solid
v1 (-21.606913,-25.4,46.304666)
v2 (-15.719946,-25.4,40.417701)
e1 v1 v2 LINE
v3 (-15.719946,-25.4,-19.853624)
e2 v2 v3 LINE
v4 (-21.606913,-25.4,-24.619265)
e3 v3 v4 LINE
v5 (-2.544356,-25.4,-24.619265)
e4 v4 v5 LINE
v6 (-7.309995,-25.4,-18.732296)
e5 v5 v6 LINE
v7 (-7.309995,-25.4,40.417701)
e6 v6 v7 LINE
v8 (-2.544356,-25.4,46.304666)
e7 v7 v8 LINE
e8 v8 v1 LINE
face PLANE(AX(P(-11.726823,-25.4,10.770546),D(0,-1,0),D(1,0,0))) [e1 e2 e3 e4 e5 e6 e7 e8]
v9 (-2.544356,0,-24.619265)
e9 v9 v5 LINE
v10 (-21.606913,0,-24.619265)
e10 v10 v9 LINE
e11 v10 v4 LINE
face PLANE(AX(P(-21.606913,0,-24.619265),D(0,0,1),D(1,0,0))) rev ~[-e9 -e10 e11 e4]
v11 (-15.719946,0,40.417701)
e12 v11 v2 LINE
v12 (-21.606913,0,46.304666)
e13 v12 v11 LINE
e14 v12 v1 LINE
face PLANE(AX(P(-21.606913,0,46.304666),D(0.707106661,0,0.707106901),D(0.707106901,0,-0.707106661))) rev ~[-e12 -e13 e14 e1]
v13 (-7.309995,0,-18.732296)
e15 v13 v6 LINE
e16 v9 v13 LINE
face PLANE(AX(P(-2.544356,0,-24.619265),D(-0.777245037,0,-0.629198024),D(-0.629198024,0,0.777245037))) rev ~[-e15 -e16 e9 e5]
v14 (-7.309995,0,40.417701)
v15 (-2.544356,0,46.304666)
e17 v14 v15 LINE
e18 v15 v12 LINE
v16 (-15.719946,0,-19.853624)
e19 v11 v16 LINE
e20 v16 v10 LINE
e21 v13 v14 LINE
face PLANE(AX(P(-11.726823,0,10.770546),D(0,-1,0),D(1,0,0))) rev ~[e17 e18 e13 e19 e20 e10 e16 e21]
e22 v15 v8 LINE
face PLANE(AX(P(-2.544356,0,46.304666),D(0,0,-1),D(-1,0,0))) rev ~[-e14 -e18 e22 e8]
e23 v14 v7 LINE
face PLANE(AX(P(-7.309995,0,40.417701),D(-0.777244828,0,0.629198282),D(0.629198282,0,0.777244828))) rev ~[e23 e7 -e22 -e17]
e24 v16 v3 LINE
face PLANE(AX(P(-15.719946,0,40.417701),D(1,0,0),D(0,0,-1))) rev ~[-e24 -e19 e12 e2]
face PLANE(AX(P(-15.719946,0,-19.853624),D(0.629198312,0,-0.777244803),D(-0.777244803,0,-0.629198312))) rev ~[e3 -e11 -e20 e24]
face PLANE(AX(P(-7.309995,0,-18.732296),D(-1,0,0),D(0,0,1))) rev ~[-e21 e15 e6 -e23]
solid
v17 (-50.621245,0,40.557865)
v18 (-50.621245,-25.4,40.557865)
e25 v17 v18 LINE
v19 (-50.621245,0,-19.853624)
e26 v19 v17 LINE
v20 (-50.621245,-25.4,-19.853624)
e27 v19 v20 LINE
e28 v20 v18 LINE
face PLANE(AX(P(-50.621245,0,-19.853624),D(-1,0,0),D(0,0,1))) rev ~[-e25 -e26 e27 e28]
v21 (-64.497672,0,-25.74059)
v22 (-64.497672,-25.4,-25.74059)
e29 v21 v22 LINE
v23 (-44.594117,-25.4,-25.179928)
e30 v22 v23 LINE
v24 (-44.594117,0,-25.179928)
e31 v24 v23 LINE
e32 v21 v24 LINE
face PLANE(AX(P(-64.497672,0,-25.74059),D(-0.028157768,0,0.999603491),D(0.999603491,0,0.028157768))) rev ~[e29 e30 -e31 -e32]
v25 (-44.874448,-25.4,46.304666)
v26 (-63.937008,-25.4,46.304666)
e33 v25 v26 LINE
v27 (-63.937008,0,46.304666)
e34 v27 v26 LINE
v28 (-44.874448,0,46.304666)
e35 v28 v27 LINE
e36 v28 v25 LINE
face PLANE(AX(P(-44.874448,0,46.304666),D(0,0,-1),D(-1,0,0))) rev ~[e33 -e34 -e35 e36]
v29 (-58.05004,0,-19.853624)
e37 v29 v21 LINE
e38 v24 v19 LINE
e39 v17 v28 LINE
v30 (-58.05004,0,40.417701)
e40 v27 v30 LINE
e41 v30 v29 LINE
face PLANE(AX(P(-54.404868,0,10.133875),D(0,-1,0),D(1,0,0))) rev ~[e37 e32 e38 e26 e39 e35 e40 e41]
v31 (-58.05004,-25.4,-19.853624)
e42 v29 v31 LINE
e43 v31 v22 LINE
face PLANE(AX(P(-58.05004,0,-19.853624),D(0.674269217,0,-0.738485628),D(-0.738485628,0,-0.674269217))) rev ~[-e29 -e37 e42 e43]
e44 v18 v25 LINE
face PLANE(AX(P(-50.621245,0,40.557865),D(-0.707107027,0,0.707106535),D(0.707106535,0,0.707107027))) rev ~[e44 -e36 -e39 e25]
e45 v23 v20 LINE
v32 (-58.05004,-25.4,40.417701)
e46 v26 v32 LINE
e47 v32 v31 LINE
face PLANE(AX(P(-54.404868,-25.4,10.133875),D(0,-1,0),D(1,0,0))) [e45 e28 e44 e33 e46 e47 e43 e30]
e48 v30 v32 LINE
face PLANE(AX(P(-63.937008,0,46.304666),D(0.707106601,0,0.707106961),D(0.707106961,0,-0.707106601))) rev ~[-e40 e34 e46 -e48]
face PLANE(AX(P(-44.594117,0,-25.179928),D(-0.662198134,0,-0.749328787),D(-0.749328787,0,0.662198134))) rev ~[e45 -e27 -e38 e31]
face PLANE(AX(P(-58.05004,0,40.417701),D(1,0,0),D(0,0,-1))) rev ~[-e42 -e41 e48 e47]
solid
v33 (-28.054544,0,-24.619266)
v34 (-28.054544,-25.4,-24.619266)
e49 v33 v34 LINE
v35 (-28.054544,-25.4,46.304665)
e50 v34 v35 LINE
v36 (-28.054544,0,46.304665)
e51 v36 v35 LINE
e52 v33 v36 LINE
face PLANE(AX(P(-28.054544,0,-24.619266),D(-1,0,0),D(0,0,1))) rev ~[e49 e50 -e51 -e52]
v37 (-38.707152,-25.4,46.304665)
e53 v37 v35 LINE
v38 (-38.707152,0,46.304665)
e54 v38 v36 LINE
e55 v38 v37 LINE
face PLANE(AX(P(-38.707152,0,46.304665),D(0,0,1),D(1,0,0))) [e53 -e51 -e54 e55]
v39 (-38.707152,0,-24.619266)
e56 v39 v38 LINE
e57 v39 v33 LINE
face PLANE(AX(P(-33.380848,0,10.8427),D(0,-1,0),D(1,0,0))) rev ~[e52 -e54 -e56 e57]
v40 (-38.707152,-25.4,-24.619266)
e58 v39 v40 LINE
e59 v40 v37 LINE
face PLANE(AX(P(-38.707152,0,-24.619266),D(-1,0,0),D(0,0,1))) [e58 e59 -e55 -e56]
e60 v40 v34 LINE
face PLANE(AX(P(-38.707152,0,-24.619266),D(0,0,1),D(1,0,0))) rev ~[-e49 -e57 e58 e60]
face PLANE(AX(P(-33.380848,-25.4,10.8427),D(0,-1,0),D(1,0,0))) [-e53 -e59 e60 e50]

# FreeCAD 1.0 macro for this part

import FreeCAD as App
import Part
import Sketcher
from FreeCAD import Vector
Q = App.Units.Quantity

doc = App.newDocument("Part")
body = doc.addObject("PartDesign::Body", "Body")
body.AllowCompound = True

# Sketch on XZ plane
sketch1 = body.newObject("Sketcher::SketchObject", "Sketch")
sketch1.AttachmentSupport = (doc.getObject("XZ_Plane"), [""])
sketch1.MapMode = "FlatFace"
sketch1.addGeometry([
    Part.LineSegment(Vector(-45, 46, 0), Vector(-64, 46, 0)),  # 0
    Part.LineSegment(Vector(-64, 46, 0), Vector(-58, 40, 0)),  # 1
    Part.LineSegment(Vector(-58, 40, 0), Vector(-58, -20, 0)),  # 2
    Part.LineSegment(Vector(-58, -20, 0), Vector(-64, -26, 0)),  # 3
    Part.LineSegment(Vector(-64, -26, 0), Vector(-45, -25, 0)),  # 4
    Part.LineSegment(Vector(-45, -25, 0), Vector(-51, -20, 0)),  # 5
    Part.LineSegment(Vector(-51, -20, 0), Vector(-51, 41, 0)),  # 6
    Part.LineSegment(Vector(-51, 41, 0), Vector(-45, 46, 0)),  # 7
    Part.LineSegment(Vector(-39, 46, 0), Vector(-39, -25, 0)),  # 8
    Part.LineSegment(Vector(-39, -25, 0), Vector(-28, -25, 0)),  # 9
    Part.LineSegment(Vector(-28, -25, 0), Vector(-28, 46, 0)),  # 10
    Part.LineSegment(Vector(-28, 46, 0), Vector(-39, 46, 0)),  # 11
    Part.LineSegment(Vector(-3, 46, 0), Vector(-22, 46, 0)),  # 12
    Part.LineSegment(Vector(-22, 46, 0), Vector(-16, 40, 0)),  # 13
    Part.LineSegment(Vector(-16, 40, 0), Vector(-16, -20, 0)),  # 14
    Part.LineSegment(Vector(-16, -20, 0), Vector(-22, -25, 0)),  # 15
    Part.LineSegment(Vector(-22, -25, 0), Vector(-3, -25, 0)),  # 16
    Part.LineSegment(Vector(-3, -25, 0), Vector(-7, -19, 0)),  # 17
    Part.LineSegment(Vector(-7, -19, 0), Vector(-7, 40, 0)),  # 18
    Part.LineSegment(Vector(-7, 40, 0), Vector(-3, 46, 0)),  # 19
], False)
sketch1.addConstraint([
    Sketcher.Constraint("Coincident", 0, 2, 1, 1),
    Sketcher.Constraint("Coincident", 1, 2, 2, 1),
    Sketcher.Constraint("Coincident", 2, 2, 3, 1),
    Sketcher.Constraint("Coincident", 3, 2, 4, 1),
    Sketcher.Constraint("Coincident", 4, 2, 5, 1),
    Sketcher.Constraint("Coincident", 5, 2, 6, 1),
    Sketcher.Constraint("Coincident", 6, 2, 7, 1),
    Sketcher.Constraint("Coincident", 7, 2, 0, 1),
    Sketcher.Constraint("Coincident", 8, 2, 9, 1),
    Sketcher.Constraint("Coincident", 9, 2, 10, 1),
    Sketcher.Constraint("Coincident", 10, 2, 11, 1),
    Sketcher.Constraint("Coincident", 11, 2, 8, 1),
    Sketcher.Constraint("Coincident", 12, 2, 13, 1),
    Sketcher.Constraint("Coincident", 13, 2, 14, 1),
    Sketcher.Constraint("Coincident", 14, 2, 15, 1),
    Sketcher.Constraint("Coincident", 15, 2, 16, 1),
    Sketcher.Constraint("Coincident", 16, 2, 17, 1),
    Sketcher.Constraint("Coincident", 17, 2, 18, 1),
    Sketcher.Constraint("Coincident", 18, 2, 19, 1),
    Sketcher.Constraint("Coincident", 19, 2, 12, 1),
    Sketcher.Constraint("Horizontal", 0),
    Sketcher.Constraint("Vertical", 2),
    Sketcher.Constraint("Vertical", 6),
    Sketcher.Constraint("Vertical", 8),
    Sketcher.Constraint("Horizontal", 9),
    Sketcher.Constraint("Vertical", 10),
    Sketcher.Constraint("Horizontal", 11),
    Sketcher.Constraint("Horizontal", 12),
    Sketcher.Constraint("Vertical", 14),
    Sketcher.Constraint("Horizontal", 16),
    Sketcher.Constraint("Vertical", 18),
    Sketcher.Constraint("Perpendicular", 1, 7),
    Sketcher.Constraint("Perpendicular", 7, 13),
    Sketcher.Constraint("Perpendicular", 15, 17),
    Sketcher.Constraint("Horizontal", 2, 2, 5, 2),
    Sketcher.Constraint("Horizontal", 7, 2, 10, 2),
    Sketcher.Constraint("Horizontal", 11, 2, 12, 2),
    Sketcher.Constraint("Horizontal", 1, 2, 13, 2),
    Sketcher.Constraint("Horizontal", 5, 2, 14, 2),
    Sketcher.Constraint("Horizontal", 9, 2, 15, 2),
    Sketcher.Constraint("Horizontal", 13, 2, 18, 2),
    Sketcher.Constraint("Vertical", 12, 2, 15, 2),
    Sketcher.Constraint("Vertical", 16, 2, 19, 2),
    Sketcher.Constraint("Equal", 15, 17),
    Sketcher.Constraint("Angle", 1, Q("-44.999985 deg")),
    Sketcher.Constraint("Distance", 7, Q("8.127201 mm")),
    Sketcher.Constraint("DistanceX", 0, 2, 0, 1, Q("19.06256 mm")),
    Sketcher.Constraint("DistanceY", 6, 1, 6, 2, Q("60.411489 mm")),
    Sketcher.Constraint("DistanceY", 8, 2, 8, 1, Q("70.923931 mm")),
    Sketcher.Constraint("DistanceY", -1, 1, 1, 2, Q("40.417701 mm")),
    Sketcher.Constraint("DistanceX", 5, 2, 9, 2, Q("22.566701 mm")),
    Sketcher.Constraint("DistanceX", 10, 2, 13, 2, Q("12.334598 mm")),
    Sketcher.Constraint("Distance", 4, Q("19.91145 mm")),
    Sketcher.Constraint("Distance", 5, Q("8.043369 mm")),
    Sketcher.Constraint("Distance", 17, Q("7.574148 mm")),
    Sketcher.Constraint("DistanceX", 9, 1, 9, 2, Q("10.652607 mm")),
    Sketcher.Constraint("DistanceX", 12, 2, 12, 1, Q("19.062557 mm")),
    Sketcher.Constraint("DistanceX", 1, 2, -1, 1, Q("58.05004 mm")),
    Sketcher.Constraint("DistanceX", 3, 2, -1, 1, Q("64.497672 mm")),
    Sketcher.Constraint("DistanceY", 3, 2, -1, 1, Q("25.74059 mm")),
])
pad1 = body.newObject("PartDesign::Pad", "Pad")
pad1.Profile = sketch1
pad1.Length = Q("1 in")

doc.recompute()
